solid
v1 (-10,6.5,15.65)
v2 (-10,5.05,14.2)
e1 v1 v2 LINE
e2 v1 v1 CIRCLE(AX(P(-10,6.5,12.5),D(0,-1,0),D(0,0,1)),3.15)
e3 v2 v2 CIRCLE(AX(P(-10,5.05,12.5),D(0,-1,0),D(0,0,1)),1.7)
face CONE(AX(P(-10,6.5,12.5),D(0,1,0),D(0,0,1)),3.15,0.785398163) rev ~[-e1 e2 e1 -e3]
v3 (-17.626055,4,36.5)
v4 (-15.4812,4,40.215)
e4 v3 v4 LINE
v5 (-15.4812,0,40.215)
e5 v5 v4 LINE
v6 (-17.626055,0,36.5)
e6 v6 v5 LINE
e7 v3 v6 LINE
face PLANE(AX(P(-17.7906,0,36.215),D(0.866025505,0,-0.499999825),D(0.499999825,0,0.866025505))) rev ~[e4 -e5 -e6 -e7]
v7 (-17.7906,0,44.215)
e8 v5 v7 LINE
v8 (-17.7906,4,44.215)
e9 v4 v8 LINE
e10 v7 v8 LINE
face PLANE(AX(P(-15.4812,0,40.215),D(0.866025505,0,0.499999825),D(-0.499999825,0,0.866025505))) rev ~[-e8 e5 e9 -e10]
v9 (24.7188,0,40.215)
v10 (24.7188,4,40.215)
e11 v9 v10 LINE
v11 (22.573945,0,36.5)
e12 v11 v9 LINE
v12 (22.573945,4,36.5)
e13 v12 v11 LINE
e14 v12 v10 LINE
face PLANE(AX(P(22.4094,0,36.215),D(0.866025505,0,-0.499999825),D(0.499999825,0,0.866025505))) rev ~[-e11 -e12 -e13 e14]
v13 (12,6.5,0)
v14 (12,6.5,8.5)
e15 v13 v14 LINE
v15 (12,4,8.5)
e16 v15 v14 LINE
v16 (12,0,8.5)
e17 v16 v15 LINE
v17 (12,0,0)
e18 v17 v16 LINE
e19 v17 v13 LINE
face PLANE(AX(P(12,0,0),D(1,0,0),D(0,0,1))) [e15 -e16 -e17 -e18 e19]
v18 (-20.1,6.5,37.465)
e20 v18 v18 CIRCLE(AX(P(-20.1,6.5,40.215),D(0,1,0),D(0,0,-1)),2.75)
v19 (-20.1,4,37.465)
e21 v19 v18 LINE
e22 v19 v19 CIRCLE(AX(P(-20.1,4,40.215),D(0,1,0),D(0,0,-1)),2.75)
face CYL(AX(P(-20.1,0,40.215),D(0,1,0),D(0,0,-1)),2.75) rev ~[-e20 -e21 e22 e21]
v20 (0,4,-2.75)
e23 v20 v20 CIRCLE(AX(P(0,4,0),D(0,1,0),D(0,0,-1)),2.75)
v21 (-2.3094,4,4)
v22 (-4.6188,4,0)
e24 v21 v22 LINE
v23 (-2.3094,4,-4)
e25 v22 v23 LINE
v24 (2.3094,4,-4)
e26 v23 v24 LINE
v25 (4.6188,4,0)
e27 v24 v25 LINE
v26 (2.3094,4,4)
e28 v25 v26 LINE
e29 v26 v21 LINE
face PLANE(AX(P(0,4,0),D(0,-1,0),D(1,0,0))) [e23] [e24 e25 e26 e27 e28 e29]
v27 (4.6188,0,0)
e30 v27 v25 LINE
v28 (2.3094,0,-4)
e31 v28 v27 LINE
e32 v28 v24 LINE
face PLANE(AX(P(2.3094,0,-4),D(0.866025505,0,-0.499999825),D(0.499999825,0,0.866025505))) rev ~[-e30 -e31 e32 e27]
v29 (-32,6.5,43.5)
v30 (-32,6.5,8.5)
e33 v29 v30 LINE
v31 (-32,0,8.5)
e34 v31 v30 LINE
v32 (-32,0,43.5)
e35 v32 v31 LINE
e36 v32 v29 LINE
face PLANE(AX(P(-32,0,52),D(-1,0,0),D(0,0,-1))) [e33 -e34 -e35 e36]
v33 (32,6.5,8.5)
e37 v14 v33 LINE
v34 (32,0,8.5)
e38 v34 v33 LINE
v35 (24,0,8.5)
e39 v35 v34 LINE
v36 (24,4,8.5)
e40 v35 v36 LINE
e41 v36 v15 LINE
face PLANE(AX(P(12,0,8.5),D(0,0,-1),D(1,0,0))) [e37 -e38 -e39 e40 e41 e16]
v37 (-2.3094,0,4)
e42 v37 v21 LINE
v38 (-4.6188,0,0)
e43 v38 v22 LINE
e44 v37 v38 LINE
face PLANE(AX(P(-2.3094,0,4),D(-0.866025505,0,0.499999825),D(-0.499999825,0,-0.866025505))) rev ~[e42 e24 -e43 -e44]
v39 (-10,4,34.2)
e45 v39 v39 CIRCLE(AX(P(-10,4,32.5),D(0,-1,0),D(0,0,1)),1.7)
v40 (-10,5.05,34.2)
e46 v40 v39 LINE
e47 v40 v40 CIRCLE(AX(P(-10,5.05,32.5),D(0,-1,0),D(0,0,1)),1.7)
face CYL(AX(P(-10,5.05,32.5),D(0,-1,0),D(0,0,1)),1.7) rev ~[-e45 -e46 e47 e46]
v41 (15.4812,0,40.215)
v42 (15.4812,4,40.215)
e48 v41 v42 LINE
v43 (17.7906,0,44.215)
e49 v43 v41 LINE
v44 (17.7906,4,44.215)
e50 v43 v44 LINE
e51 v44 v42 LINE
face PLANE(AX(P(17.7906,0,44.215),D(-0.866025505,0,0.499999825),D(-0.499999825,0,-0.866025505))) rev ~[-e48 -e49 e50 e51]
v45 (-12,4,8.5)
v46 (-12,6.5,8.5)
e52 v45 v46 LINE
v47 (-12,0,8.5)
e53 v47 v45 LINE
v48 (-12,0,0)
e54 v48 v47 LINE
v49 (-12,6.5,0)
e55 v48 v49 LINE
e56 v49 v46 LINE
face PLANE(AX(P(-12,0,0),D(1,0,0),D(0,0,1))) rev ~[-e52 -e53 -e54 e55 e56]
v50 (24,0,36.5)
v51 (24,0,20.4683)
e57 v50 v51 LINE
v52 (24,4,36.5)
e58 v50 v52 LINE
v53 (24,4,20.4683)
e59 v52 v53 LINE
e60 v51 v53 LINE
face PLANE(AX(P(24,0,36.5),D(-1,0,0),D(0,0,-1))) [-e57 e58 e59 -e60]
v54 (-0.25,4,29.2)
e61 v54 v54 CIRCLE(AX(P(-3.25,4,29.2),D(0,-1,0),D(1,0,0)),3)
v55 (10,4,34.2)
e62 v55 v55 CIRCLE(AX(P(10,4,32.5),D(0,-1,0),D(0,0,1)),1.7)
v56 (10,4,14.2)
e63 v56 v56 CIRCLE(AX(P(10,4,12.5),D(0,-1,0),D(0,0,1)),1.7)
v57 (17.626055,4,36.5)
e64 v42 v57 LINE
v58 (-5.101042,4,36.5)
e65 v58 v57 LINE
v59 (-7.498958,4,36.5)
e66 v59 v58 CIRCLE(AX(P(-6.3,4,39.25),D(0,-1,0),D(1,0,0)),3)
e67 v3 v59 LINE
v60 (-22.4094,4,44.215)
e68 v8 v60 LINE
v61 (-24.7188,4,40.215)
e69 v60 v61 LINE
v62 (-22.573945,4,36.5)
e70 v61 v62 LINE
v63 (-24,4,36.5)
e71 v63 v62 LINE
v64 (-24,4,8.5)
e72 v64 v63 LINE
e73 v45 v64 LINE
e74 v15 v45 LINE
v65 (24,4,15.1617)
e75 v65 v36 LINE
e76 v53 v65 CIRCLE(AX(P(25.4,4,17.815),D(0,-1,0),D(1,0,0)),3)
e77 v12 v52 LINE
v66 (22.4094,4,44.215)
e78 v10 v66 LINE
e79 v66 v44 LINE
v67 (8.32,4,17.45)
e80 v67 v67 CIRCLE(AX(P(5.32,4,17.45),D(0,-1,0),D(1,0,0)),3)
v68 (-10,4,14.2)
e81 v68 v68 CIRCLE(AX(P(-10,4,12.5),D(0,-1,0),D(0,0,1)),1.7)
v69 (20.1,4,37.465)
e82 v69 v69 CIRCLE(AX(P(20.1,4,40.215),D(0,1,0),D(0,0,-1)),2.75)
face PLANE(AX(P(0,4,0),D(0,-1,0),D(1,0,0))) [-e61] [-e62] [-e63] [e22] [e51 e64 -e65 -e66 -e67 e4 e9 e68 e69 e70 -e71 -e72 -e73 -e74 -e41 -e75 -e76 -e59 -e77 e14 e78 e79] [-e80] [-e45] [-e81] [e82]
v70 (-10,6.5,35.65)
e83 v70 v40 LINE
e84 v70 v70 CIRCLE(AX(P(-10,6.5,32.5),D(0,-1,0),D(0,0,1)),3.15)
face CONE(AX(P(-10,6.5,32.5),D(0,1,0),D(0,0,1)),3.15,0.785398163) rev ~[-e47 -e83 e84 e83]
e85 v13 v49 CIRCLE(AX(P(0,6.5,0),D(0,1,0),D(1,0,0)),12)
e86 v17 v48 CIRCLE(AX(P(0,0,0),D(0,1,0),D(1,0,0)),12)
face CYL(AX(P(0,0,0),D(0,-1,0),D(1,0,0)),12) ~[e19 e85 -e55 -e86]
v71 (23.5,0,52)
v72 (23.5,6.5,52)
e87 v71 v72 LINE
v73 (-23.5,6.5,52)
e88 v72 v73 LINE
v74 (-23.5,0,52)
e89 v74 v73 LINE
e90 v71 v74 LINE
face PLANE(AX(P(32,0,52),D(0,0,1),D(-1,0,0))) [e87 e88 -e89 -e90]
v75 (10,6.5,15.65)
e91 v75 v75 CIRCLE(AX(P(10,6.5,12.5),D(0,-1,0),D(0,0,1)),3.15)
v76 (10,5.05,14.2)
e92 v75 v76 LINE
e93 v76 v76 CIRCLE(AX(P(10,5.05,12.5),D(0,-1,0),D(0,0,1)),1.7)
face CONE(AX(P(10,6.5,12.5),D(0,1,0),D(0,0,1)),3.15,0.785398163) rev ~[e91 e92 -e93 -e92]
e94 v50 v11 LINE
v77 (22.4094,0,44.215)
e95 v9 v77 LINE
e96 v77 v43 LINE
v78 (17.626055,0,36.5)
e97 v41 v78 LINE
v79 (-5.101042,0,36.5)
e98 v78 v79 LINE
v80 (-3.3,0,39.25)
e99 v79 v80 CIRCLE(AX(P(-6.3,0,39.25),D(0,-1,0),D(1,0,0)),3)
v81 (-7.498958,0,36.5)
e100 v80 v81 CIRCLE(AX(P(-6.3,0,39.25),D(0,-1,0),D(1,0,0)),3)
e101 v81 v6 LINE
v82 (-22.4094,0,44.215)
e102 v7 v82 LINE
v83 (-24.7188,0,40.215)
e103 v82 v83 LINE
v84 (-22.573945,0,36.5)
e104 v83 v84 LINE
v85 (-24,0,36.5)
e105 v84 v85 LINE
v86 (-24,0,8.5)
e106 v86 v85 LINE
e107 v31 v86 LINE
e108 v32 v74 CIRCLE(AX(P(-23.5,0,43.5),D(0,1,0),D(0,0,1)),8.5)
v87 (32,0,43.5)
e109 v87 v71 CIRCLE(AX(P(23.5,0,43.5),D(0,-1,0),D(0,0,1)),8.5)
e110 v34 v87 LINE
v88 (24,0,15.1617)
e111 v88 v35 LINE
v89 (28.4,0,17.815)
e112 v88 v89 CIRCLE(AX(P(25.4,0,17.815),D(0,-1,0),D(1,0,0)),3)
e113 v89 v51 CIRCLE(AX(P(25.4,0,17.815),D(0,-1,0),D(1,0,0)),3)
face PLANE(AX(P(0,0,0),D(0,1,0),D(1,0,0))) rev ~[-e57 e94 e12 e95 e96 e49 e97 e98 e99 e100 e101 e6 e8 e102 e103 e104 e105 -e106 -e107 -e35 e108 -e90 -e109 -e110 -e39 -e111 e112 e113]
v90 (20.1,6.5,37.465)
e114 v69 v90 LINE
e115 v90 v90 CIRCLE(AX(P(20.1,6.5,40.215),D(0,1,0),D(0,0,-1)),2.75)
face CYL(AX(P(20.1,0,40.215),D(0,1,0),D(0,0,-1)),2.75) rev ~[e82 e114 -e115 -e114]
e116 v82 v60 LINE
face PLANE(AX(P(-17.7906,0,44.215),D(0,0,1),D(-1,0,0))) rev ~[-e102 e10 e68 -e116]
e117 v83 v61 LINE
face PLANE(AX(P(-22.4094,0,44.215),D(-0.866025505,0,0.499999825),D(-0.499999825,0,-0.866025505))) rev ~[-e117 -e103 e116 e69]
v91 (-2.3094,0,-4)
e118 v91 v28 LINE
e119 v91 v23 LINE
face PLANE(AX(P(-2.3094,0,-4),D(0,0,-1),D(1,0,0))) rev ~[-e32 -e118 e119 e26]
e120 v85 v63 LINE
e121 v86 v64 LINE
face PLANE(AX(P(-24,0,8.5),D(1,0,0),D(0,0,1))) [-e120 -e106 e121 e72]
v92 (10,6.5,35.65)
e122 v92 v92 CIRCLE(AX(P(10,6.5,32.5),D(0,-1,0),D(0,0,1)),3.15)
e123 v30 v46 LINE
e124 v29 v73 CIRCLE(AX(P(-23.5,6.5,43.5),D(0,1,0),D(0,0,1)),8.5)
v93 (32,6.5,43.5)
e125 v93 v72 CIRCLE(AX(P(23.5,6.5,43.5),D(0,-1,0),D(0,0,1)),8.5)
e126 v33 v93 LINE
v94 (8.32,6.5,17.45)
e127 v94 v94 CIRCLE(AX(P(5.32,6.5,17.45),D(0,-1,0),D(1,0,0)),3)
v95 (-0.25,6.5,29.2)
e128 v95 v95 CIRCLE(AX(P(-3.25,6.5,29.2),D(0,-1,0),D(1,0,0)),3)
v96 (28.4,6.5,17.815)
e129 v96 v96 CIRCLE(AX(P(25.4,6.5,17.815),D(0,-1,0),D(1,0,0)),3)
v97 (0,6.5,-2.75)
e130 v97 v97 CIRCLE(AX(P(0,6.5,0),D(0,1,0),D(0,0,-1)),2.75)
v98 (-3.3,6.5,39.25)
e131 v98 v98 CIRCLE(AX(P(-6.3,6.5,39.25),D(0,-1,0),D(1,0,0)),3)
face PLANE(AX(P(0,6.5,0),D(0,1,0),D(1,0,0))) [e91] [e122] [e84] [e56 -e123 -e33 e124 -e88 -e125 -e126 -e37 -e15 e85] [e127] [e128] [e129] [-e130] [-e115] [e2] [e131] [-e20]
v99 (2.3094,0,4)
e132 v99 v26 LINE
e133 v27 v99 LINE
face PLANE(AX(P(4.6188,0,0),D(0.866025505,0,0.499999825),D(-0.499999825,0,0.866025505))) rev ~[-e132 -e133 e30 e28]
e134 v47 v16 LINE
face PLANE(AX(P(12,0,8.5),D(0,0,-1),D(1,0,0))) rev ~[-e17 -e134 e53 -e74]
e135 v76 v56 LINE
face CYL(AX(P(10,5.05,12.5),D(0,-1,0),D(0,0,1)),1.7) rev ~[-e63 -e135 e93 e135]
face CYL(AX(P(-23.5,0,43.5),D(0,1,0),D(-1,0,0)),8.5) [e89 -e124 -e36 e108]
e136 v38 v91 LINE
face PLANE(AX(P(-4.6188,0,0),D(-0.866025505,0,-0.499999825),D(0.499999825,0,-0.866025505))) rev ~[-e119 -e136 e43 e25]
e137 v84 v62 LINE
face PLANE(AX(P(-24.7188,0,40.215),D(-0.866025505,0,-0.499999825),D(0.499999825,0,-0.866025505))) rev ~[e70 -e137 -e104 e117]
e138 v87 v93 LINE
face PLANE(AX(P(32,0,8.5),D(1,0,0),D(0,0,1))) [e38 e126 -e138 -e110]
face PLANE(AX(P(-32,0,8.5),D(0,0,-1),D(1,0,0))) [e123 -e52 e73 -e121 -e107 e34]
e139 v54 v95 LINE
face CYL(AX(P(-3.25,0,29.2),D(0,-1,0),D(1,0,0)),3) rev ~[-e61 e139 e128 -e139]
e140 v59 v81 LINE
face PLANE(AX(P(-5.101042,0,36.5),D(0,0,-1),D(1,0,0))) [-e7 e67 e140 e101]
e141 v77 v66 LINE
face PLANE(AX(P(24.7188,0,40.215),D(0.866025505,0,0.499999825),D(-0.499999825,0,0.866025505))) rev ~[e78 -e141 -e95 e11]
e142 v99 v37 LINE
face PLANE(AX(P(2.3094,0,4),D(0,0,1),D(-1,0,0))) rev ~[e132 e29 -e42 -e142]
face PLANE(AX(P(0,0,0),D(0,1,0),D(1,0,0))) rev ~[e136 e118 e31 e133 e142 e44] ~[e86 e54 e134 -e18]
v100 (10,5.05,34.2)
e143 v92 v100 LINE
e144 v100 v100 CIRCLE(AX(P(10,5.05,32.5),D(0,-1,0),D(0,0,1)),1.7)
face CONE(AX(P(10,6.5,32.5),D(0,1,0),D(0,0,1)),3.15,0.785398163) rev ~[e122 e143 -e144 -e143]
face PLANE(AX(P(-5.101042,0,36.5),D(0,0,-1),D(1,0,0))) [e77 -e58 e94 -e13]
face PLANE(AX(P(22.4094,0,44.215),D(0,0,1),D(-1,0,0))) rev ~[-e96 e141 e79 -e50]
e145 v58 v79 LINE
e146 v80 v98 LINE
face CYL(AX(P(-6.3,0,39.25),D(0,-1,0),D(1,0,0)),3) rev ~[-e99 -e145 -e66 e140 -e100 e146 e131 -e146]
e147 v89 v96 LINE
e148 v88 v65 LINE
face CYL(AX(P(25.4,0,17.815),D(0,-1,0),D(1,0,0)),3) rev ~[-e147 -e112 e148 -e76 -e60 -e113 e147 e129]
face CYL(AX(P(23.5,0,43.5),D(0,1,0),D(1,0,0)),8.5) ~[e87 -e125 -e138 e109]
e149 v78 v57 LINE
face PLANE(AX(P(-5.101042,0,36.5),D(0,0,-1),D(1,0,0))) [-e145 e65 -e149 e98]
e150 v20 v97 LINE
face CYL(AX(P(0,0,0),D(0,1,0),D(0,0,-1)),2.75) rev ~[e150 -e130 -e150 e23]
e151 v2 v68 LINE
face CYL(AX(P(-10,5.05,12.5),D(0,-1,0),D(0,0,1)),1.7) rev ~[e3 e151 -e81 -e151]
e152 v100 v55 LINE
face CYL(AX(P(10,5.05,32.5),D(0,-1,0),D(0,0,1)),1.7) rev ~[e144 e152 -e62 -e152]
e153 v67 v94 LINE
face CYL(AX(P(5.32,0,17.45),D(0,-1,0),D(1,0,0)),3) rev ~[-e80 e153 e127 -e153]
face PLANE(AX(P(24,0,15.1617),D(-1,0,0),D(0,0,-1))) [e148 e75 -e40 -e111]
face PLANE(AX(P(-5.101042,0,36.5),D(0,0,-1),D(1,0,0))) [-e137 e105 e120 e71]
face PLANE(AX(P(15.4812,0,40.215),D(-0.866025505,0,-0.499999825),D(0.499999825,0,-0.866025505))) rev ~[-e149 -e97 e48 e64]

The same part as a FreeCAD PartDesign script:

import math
import FreeCAD as App
import Part
import Sketcher
from FreeCAD import Vector
Q = App.Units.Quantity


def edges_at(feature, points):
    """Names of the edges that pass closest to the given points."""
    edges = feature.Shape.Edges
    near = lambda p: min(range(len(edges)), key=lambda i: edges[i].distToShape(Part.Vertex(*p))[0])
    return sorted({f"Edge{near(p) + 1}" for p in points})


def add_polygon(sketch, points):
    """Adds a closed chain of lines whose ends are joined by coincident constraints."""
    first, n = sketch.GeometryCount, len(points)
    for a, b in zip(points, points[1:] + points[:1]):
        sketch.addGeometry(Part.LineSegment(App.Vector(*a, 0), App.Vector(*b, 0)), False)
    for i in range(n):
        sketch.addConstraint(Sketcher.Constraint("Coincident", first + i, 2, first + (i + 1) % n, 1))

doc = App.newDocument("Part")
body = doc.addObject("PartDesign::Body", "Body")

# Sketch on XZ plane
sketch1 = body.newObject("Sketcher::SketchObject", "Sketch")
sketch1.AttachmentSupport = (doc.getObject("XZ_Plane"), [""])
sketch1.MapMode = "FlatFace"
sketch1.addGeometry([
    Part.ArcOfCircle(Part.Circle(Vector(0, 0, 0), Vector(0, 0, 1), 12), math.radians(180), math.radians(360)),  # 0
    Part.LineSegment(Vector(-12, 0, 0), Vector(-12, 8.5, 0)),  # 1
    Part.LineSegment(Vector(-12, 8.5, 0), Vector(-32, 8.5, 0)),  # 2
    Part.LineSegment(Vector(-32, 8.5, 0), Vector(-32, 52, 0)),  # 3
    Part.LineSegment(Vector(-32, 52, 0), Vector(32, 52, 0)),  # 4
    Part.LineSegment(Vector(32, 52, 0), Vector(32, 8.5, 0)),  # 5
    Part.LineSegment(Vector(32, 8.5, 0), Vector(12, 8.5, 0)),  # 6
    Part.LineSegment(Vector(12, 8.5, 0), Vector(12, 0, 0)),  # 7
], False)
sketch1.addConstraint([
    Sketcher.Constraint("Tangent", 0, 1, 1, 1),
    Sketcher.Constraint("Coincident", 1, 2, 2, 1),
    Sketcher.Constraint("Coincident", 2, 2, 3, 1),
    Sketcher.Constraint("Coincident", 3, 2, 4, 1),
    Sketcher.Constraint("Coincident", 4, 2, 5, 1),
    Sketcher.Constraint("Coincident", 5, 2, 6, 1),
    Sketcher.Constraint("Coincident", 6, 2, 7, 1),
    Sketcher.Constraint("Tangent", 7, 2, 0, 2),
    Sketcher.Constraint("Vertical", 1),
    Sketcher.Constraint("Horizontal", 2),
    Sketcher.Constraint("Vertical", 3),
    Sketcher.Constraint("Horizontal", 4),
    Sketcher.Constraint("Vertical", 5),
    Sketcher.Constraint("Horizontal", 6),
    Sketcher.Constraint("Vertical", 7),
    Sketcher.Constraint("Coincident", 0, 3, -1, 1),
    Sketcher.Constraint("Symmetric", 2, 2, 5, 2, -2),
    Sketcher.Constraint("Radius", 0, 12.0),
    Sketcher.Constraint("DistanceX", 4, 1, 4, 2, 64.0),
    Sketcher.Constraint("DistanceY", 3, 1, 3, 2, 43.5),
    Sketcher.Constraint("DistanceY", 1, 1, 1, 2, 8.5),
])
pad1 = body.newObject("PartDesign::Pad", "Pad")
pad1.Profile = sketch1
pad1.Length = 6.5
pad1.Reversed = True
doc.recompute()

fillet = body.newObject("PartDesign::Fillet", "Fillet")
fillet.Base = (pad1, edges_at(pad1, [(-32, 3.25, 52), (32, 3.25, 52)]))
fillet.Radius = 8.5

# Sketch on XZ plane
sketch2 = body.newObject("Sketcher::SketchObject", "Sketch001")
sketch2.AttachmentSupport = (doc.getObject("XZ_Plane"), [""])
sketch2.MapMode = "FlatFace"
sketch2.addGeometry([
    Part.Circle(Vector(-20.1, 40.215, 0), Vector(0, 0, 1), 2.75),
    Part.Circle(Vector(20.1, 40.215, 0), Vector(0, 0, 1), 2.75),
    Part.Circle(Vector(0, 0, 0), Vector(0, 0, 1), 2.75),
], False)
sketch2.addConstraint([
    Sketcher.Constraint("Coincident", 2, 3, -1, 1),
    Sketcher.Constraint("Equal", 0, 1),
    Sketcher.Constraint("Equal", 1, 2),
    Sketcher.Constraint("Symmetric", 0, 3, 1, 3, -2),
    Sketcher.Constraint("Diameter", 0, 5.5),
    Sketcher.Constraint("DistanceX", 0, 3, -1, 1, 20.1),
    Sketcher.Constraint("DistanceY", -1, 1, 0, 3, 40.215),
])
doc.recompute()
hole = body.newObject("PartDesign::Hole", "Hole")
hole.Profile = sketch2
hole.ThreadType = "None"
hole.Diameter = 5.5
hole.DepthType = "Dimension"
hole.Depth = 16
hole.DrillPoint = "Angled"
hole.DrillPointAngle = 118

# Sketch on XZ plane
sketch3 = body.newObject("Sketcher::SketchObject", "Sketch002")
sketch3.AttachmentSupport = (doc.getObject("XZ_Plane"), [""])
sketch3.MapMode = "FlatFace"
sketch3.addGeometry([
    Part.Circle(Vector(5.32, 17.45, 0), Vector(0, 0, 1), 3),
    Part.Circle(Vector(25.4, 17.815, 0), Vector(0, 0, 1), 3),
    Part.Circle(Vector(-3.25, 29.2, 0), Vector(0, 0, 1), 3),
    Part.Circle(Vector(-6.3, 39.25, 0), Vector(0, 0, 1), 3),
], False)
sketch3.addConstraint([
    Sketcher.Constraint("Equal", 0, 1),
    Sketcher.Constraint("Equal", 1, 2),
    Sketcher.Constraint("Equal", 2, 3),
    Sketcher.Constraint("Diameter", 0, 6.0),
    Sketcher.Constraint("DistanceX", -1, 1, 1, 3, 25.4),
    Sketcher.Constraint("DistanceY", -1, 1, 2, 3, 29.2),
    Sketcher.Constraint("DistanceX", 3, 3, -1, 1, 6.3),
    Sketcher.Constraint("DistanceX", -1, 1, 0, 3, 5.32),
    Sketcher.Constraint("DistanceY", -1, 1, 0, 3, 17.45),
    Sketcher.Constraint("DistanceX", 2, 3, -1, 1, 3.25),
    Sketcher.Constraint("DistanceY", -1, 1, 3, 3, 39.25),
    Sketcher.Constraint("DistanceY", -1, 1, 1, 3, 17.815),
])
pocket1 = body.newObject("PartDesign::Pocket", "Pocket")
pocket1.Profile = sketch3
pocket1.Type = "ThroughAll"

# Sketch on XZ plane
sketch4 = body.newObject("Sketcher::SketchObject", "Sketch003")
sketch4.AttachmentSupport = (doc.getObject("XZ_Plane"), [""])
sketch4.MapMode = "FlatFace"
sketch4.addGeometry([
    Part.ArcOfCircle(Part.Circle(Vector(25.4, 17.815, 0), Vector(0, 0, 1), 3), math.radians(117.818139), math.radians(242.181861)),  # 0
    Part.LineSegment(Vector(24, 20.4683, 0), Vector(24, 36.5, 0)),  # 1
    Part.LineSegment(Vector(24, 36.5, 0), Vector(-24, 36.5, 0)),  # 2
    Part.LineSegment(Vector(-24, 36.5, 0), Vector(-24, 8.5, 0)),  # 3
    Part.LineSegment(Vector(-24, 8.5, 0), Vector(24, 8.5, 0)),  # 4
    Part.LineSegment(Vector(24, 8.5, 0), Vector(24, 15.1617, 0)),  # 5
    Part.Circle(Vector(5.32, 17.45, 0), Vector(0, 0, 1), 3),  # 6
    Part.Circle(Vector(-3.25, 29.2, 0), Vector(0, 0, 1), 3),  # 7
], False)
sketch4.addConstraint([
    Sketcher.Constraint("Coincident", 0, 1, 1, 1),
    Sketcher.Constraint("Coincident", 1, 2, 2, 1),
    Sketcher.Constraint("Coincident", 2, 2, 3, 1),
    Sketcher.Constraint("Coincident", 3, 2, 4, 1),
    Sketcher.Constraint("Coincident", 4, 2, 5, 1),
    Sketcher.Constraint("Coincident", 5, 2, 0, 2),
    Sketcher.Constraint("Vertical", 1),
    Sketcher.Constraint("Horizontal", 2),
    Sketcher.Constraint("Vertical", 3),
    Sketcher.Constraint("Horizontal", 4),
    Sketcher.Constraint("Vertical", 5),
    Sketcher.Constraint("Equal", 0, 6),
    Sketcher.Constraint("Equal", 6, 7),
    Sketcher.Constraint("Vertical", 1, 2, 4, 2),
    Sketcher.Constraint("DistanceX", 2, 2, 2, 1, 48.0),
    Sketcher.Constraint("DistanceY", 3, 2, 3, 1, 28.0),
    Sketcher.Constraint("Diameter", 6, 6.0),
    Sketcher.Constraint("DistanceY", -1, 1, 3, 2, 8.5),
    Sketcher.Constraint("DistanceX", -1, 1, 0, 1, 24.0),
    Sketcher.Constraint("DistanceX", -1, 1, 0, 3, 25.4),
    Sketcher.Constraint("DistanceY", -1, 1, 7, 3, 29.2),
    Sketcher.Constraint("DistanceX", -1, 1, 6, 3, 5.32),
    Sketcher.Constraint("DistanceY", -1, 1, 6, 3, 17.45),
    Sketcher.Constraint("DistanceX", 7, 3, -1, 1, 3.25),
    Sketcher.Constraint("DistanceY", 1, 1, 1, 2, 16.0317),
])
pocket2 = body.newObject("PartDesign::Pocket", "Pocket001")
pocket2.Profile = sketch4
pocket2.Length = 4

# Sketch on XZ plane
sketch5 = body.newObject("Sketcher::SketchObject", "Sketch004")
sketch5.AttachmentSupport = (doc.getObject("XZ_Plane"), [""])
sketch5.MapMode = "FlatFace"
add_polygon(sketch5, [(-22.4094, 36.215), (-17.7906, 36.215), (-15.4812, 40.215), (-17.7906, 44.215), (-22.4094, 44.215), (-24.7188, 40.215)])  # lines 0-5
add_polygon(sketch5, [(17.7906, 36.215), (22.4094, 36.215), (24.7188, 40.215), (22.4094, 44.215), (17.7906, 44.215), (15.4812, 40.215)])  # lines 6-11
add_polygon(sketch5, [(-2.3094, -4), (2.3094, -4), (4.6188, 0), (2.3094, 4), (-2.3094, 4), (-4.6188, 0)])  # lines 12-17
sketch5.addConstraint([
    Sketcher.Constraint("Horizontal", 0),
    Sketcher.Constraint("Horizontal", 3),
    Sketcher.Constraint("Horizontal", 6),
    Sketcher.Constraint("Horizontal", 9),
    Sketcher.Constraint("Horizontal", 12),
    Sketcher.Constraint("Horizontal", 15),
    Sketcher.Constraint("Symmetric", 12, 2, 15, 2, -1, 1),
    Sketcher.Constraint("Symmetric", 13, 2, 16, 2, -1, 1),
    Sketcher.Constraint("Symmetric", 5, 2, 6, 2, -2),
    Sketcher.Constraint("Symmetric", 4, 2, 7, 2, -2),
    Sketcher.Constraint("Symmetric", 3, 2, 8, 2, -2),
    Sketcher.Constraint("Symmetric", 1, 2, 10, 2, -2),
    Sketcher.Constraint("PointOnObject", 13, 2, -1),
    Sketcher.Constraint("Parallel", 1, 4),
    Sketcher.Constraint("Parallel", 2, 5),
    Sketcher.Constraint("Parallel", 4, 7),
    Sketcher.Constraint("Parallel", 7, 10),
    Sketcher.Constraint("Parallel", 8, 11),
    Sketcher.Constraint("Parallel", 10, 13),
    Sketcher.Constraint("Parallel", 11, 14),
    Sketcher.Constraint("Parallel", 14, 17),
    Sketcher.Constraint("Horizontal", 1, 2, 4, 2),
    Sketcher.Constraint("Vertical", 0, 2, 2, 2),
    Sketcher.Constraint("Equal", 9, 12),
    Sketcher.Constraint("Equal", 11, 13),
    Sketcher.Constraint("DistanceY", 12, 2, -1, 1, 4.0),
    Sketcher.Constraint("DistanceX", 0, 2, 12, 2, 20.1),
    Sketcher.Constraint("Angle", 1, Q("60 deg")),
    Sketcher.Constraint("DistanceY", -1, 1, 1, 2, 40.215),
    Sketcher.Constraint("DistanceX", 0, 1, 0, 2, 4.6188),
])
pocket3 = body.newObject("PartDesign::Pocket", "Pocket002")
pocket3.Profile = sketch5
pocket3.Length = 4

# Sketch on XZ plane
sketch6 = body.newObject("Sketcher::SketchObject", "Sketch005")
sketch6.AttachmentSupport = (doc.getObject("XZ_Plane"), [""])
sketch6.MapMode = "FlatFace"
sketch6.AttachmentOffset = App.Placement(Vector(0, 0, -6.5), App.Rotation())
sketch6.addGeometry([
    Part.Circle(Vector(10, 32.5, 0), Vector(0, 0, 1), 1.7),
    Part.Circle(Vector(10, 12.5, 0), Vector(0, 0, 1), 1.7),
    Part.Circle(Vector(-10, 12.5, 0), Vector(0, 0, 1), 1.7),
    Part.Circle(Vector(-10, 32.5, 0), Vector(0, 0, 1), 1.7),
], False)
sketch6.addConstraint([
    Sketcher.Constraint("Equal", 0, 1),
    Sketcher.Constraint("Equal", 1, 2),
    Sketcher.Constraint("Equal", 2, 3),
    Sketcher.Constraint("Symmetric", 1, 3, 2, 3, -2),
    Sketcher.Constraint("Symmetric", 0, 3, 3, 3, -2),
    Sketcher.Constraint("Vertical", 0, 3, 1, 3),
    Sketcher.Constraint("Diameter", 0, 3.4),
    Sketcher.Constraint("DistanceX", -1, 1, 0, 3, 10.0),
    Sketcher.Constraint("DistanceY", 1, 3, 0, 3, 20.0),
    Sketcher.Constraint("DistanceY", -1, 1, 0, 3, 32.5),
])
doc.recompute()
hole2 = body.newObject("PartDesign::Hole", "Hole001")
hole2.Profile = sketch6
hole2.ThreadType = "None"
hole2.Diameter = 3.4
hole2.DepthType = "Dimension"
hole2.Depth = 16
hole2.DrillPoint = "Angled"
hole2.DrillPointAngle = 118
hole2.HoleCutType = "Countersink"
hole2.HoleCutDiameter = 6.3
hole2.HoleCutCountersinkAngle = 90
hole2.Reversed = True

doc.recompute()
